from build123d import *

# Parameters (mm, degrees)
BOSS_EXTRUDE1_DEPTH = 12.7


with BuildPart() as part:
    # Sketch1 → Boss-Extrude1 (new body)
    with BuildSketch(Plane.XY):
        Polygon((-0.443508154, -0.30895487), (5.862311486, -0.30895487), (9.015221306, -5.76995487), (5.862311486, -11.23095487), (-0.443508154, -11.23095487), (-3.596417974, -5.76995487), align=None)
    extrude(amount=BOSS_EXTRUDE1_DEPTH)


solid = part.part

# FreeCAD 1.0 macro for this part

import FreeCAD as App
import Part
import Sketcher

V = App.Vector
Q = App.Units.Quantity


def add_polygon(sketch, points):
    """Adds a closed chain of lines whose ends are joined by coincident constraints."""
    first, n = sketch.GeometryCount, len(points)
    for a, b in zip(points, points[1:] + points[:1]):
        sketch.addGeometry(Part.LineSegment(App.Vector(*a, 0), App.Vector(*b, 0)), False)
    for i in range(n):
        sketch.addConstraint(Sketcher.Constraint("Coincident", first + i, 2, first + (i + 1) % n, 1))

doc = App.newDocument("Part")
body = doc.addObject("PartDesign::Body", "Body")

sketch1 = doc.addObject("Sketcher::SketchObject", "Sketch")
body.addObject(sketch1)
sketch1.AttachmentSupport = (doc.XY_Plane, [""])
sketch1.MapMode = "FlatFace"
add_polygon(sketch1, [(6, 0), (0, 0), (-4, -6), (0, -11), (6, -11), (9, -6)])
sketch1.addConstraint(Sketcher.Constraint("Horizontal", 0))
sketch1.addConstraint(Sketcher.Constraint("Horizontal", 3))
sketch1.addConstraint(Sketcher.Constraint("Parallel", 1, 4))
sketch1.addConstraint(Sketcher.Constraint("Parallel", 2, 5))
sketch1.addConstraint(Sketcher.Constraint("Horizontal", 1, 2, 4, 2))
sketch1.addConstraint(Sketcher.Constraint("Vertical", 0, 2, 2, 2))
sketch1.addConstraint(Sketcher.Constraint("Vertical", 3, 2, 5, 2))
sketch1.addConstraint(Sketcher.Constraint("Angle", 1, Q("-120 deg")))
sketch1.addConstraint(Sketcher.Constraint("DistanceY", 2, 2, 0, 2, Q("0.43 in")))
sketch1.addConstraint(Sketcher.Constraint("DistanceX", 0, 2, 0, 1, 6.30582))
sketch1.addConstraint(Sketcher.Constraint("DistanceX", 0, 2, -1, 1, 0.443508))
sketch1.addConstraint(Sketcher.Constraint("DistanceY", 0, 2, -1, 1, 0.308955))
pad1 = doc.addObject("PartDesign::Pad", "Pad")
body.addObject(pad1)
pad1.Profile = sketch1
pad1.Length = Q("0.5 in")

doc.recompute()
